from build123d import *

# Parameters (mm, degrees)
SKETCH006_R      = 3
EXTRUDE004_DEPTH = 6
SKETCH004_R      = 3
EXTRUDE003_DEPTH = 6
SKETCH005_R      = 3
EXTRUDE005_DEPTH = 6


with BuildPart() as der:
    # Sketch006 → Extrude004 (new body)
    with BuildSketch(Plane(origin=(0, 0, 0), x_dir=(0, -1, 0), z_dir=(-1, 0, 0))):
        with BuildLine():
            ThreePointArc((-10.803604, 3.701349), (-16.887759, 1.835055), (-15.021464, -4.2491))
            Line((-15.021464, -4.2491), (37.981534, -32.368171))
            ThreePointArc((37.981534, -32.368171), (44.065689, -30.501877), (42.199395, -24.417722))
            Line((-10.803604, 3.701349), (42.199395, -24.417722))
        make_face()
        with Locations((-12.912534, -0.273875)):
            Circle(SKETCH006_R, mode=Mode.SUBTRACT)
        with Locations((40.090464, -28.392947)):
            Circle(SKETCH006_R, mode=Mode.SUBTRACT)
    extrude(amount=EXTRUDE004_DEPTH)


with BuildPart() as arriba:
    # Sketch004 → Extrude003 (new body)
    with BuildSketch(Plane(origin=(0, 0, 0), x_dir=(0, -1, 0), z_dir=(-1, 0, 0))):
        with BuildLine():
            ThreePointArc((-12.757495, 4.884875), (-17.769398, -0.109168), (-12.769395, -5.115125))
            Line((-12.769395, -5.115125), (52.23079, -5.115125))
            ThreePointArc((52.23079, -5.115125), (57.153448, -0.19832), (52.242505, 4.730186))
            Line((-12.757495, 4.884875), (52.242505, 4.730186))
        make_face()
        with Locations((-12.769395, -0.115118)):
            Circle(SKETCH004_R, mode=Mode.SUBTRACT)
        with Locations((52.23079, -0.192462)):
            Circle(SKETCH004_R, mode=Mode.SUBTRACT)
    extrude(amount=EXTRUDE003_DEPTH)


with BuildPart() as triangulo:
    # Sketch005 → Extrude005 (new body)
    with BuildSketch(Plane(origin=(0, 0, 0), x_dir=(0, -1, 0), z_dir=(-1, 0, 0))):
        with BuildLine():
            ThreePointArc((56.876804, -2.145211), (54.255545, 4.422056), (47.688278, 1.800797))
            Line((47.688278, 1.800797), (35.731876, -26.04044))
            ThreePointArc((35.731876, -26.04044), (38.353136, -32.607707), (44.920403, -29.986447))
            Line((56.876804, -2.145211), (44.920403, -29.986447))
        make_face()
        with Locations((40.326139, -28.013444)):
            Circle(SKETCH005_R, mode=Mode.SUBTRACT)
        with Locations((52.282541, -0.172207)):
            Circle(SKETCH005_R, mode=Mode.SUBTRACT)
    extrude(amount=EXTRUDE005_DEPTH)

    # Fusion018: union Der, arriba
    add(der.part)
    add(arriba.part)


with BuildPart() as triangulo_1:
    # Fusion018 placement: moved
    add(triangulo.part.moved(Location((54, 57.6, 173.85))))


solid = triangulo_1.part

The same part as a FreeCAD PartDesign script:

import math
import FreeCAD as App
import Part
import Sketcher
Q = App.Units.Quantity

doc = App.newDocument("Part")
body = doc.addObject("PartDesign::Body", "Body")

sketch1 = doc.addObject("Sketcher::SketchObject", "Sketch")
body.addObject(sketch1)
sketch1.AttachmentSupport = (doc.YZ_Plane, [""])
sketch1.MapMode = "FlatFace"
sketch1.addGeometry([
    Part.ArcOfCircle(Part.Circle(App.Vector(12.912535, -0.273875, 0), App.Vector(0, 0, 1), 4.5), math.radians(-62.053232), math.radians(117.946785)),
    Part.LineSegment(App.Vector(15.021464, -4.2491, 0), App.Vector(-37.981534, -32.368171, 0)),
    Part.ArcOfCircle(Part.Circle(App.Vector(-40.090465, -28.392947, 0), App.Vector(0, 0, 1), 4.5), math.radians(117.946782), math.radians(297.946782)),
    Part.LineSegment(App.Vector(-42.199395, -24.417722, 0), App.Vector(10.803604, 3.701349, 0)),
    Part.Circle(App.Vector(-40.090464, -28.392947, 0), App.Vector(0, 0, 1), 3),
    Part.Circle(App.Vector(12.912534, -0.273875, 0), App.Vector(0, 0, 1), 3),
], False)
sketch1.addConstraint([
    Sketcher.Constraint("Tangent", 0, 1, 1, 1),
    Sketcher.Constraint("Tangent", 1, 2, 2, 2),
    Sketcher.Constraint("Tangent", 2, 1, 3, 1),
    Sketcher.Constraint("Tangent", 3, 2, 0, 2),
    Sketcher.Constraint("Coincident", 4, 3, 2, 3),
    Sketcher.Constraint("Coincident", 5, 3, 0, 3),
    Sketcher.Constraint("Equal", 0, 2),
    Sketcher.Constraint("Equal", 4, 5),
    Sketcher.Constraint("Diameter", 4, Q("6 mm")),
    Sketcher.Constraint("Radius", 0, Q("4.5 mm")),
    Sketcher.Constraint("Distance", 1, Q("60 mm")),
    Sketcher.Constraint("DistanceX", 2, 3, 0, 3, Q("53.002999 mm")),
    Sketcher.Constraint("DistanceY", 0, 1, -1, 1, Q("4.2491 mm")),
    Sketcher.Constraint("DistanceX", -1, 1, 0, 3, Q("12.912535 mm")),
])
pad1 = doc.addObject("PartDesign::Pad", "Pad")
body.addObject(pad1)
pad1.Profile = sketch1
pad1.Length = 6
pad1.Reversed = True
body2 = doc.addObject("PartDesign::Body", "Body001")

sketch2 = doc.addObject("Sketcher::SketchObject", "Sketch001")
body2.addObject(sketch2)
sketch2.AttachmentSupport = (doc.getObject("YZ_Plane001"), [""])
sketch2.MapMode = "FlatFace"
sketch2.addGeometry([
    Part.ArcOfCircle(Part.Circle(App.Vector(12.769394, -0.115118, 0), App.Vector(0, 0, 1), 5.000007), math.radians(-89.999994), math.radians(90.136358)),
    Part.LineSegment(App.Vector(12.769395, -5.115125, 0), App.Vector(-52.23079, -5.115125, 0)),
    Part.ArcOfCircle(Part.Circle(App.Vector(-52.230789, -0.192463, 0), App.Vector(0, 0, 1), 4.922662), math.radians(90.136365), math.radians(269.999989)),
    Part.LineSegment(App.Vector(-52.242505, 4.730186, 0), App.Vector(12.757495, 4.884875, 0)),
    Part.Circle(App.Vector(-52.23079, -0.192462, 0), App.Vector(0, 0, 1), 3),
    Part.Circle(App.Vector(12.769395, -0.115118, 0), App.Vector(0, 0, 1), 3),
], False)
sketch2.addConstraint([
    Sketcher.Constraint("Tangent", 0, 1, 1, 1),
    Sketcher.Constraint("Tangent", 1, 2, 2, 2),
    Sketcher.Constraint("Tangent", 2, 1, 3, 1),
    Sketcher.Constraint("Tangent", 3, 2, 0, 2),
    Sketcher.Constraint("Horizontal", 1),
    Sketcher.Constraint("Coincident", 4, 3, 2, 3),
    Sketcher.Constraint("Coincident", 5, 3, 0, 3),
    Sketcher.Constraint("Equal", 4, 5),
    Sketcher.Constraint("Diameter", 4, Q("6 mm")),
    Sketcher.Constraint("DistanceY", 0, 1, 3, 2, Q("10 mm")),
    Sketcher.Constraint("DistanceX", 2, 1, 3, 2, Q("65 mm")),
    Sketcher.Constraint("Radius", 2, Q("4.922662 mm")),
    Sketcher.Constraint("DistanceX", 2, 3, -1, 1, Q("52.230789 mm")),
    Sketcher.Constraint("DistanceY", 0, 3, -1, 1, Q("0.115118 mm")),
])
pad2 = doc.addObject("PartDesign::Pad", "Pad001")
body2.addObject(pad2)
pad2.Profile = sketch2
pad2.Length = 6
pad2.Reversed = True
body3 = doc.addObject("PartDesign::Body", "Body002")

sketch3 = doc.addObject("Sketcher::SketchObject", "Sketch002")
body3.addObject(sketch3)
sketch3.AttachmentSupport = (doc.getObject("YZ_Plane002"), [""])
sketch3.MapMode = "FlatFace"
sketch3.addGeometry([
    Part.ArcOfCircle(Part.Circle(App.Vector(-52.282541, -0.172207, 0), App.Vector(0, 0, 1), 5), math.radians(23.241081), math.radians(203.241081)),
    Part.LineSegment(App.Vector(-47.688278, 1.800797, 0), App.Vector(-35.731876, -26.04044, 0)),
    Part.ArcOfCircle(Part.Circle(App.Vector(-40.326139, -28.013444, 0), App.Vector(0, 0, 1), 5), math.radians(-156.758927), math.radians(23.241073)),
    Part.LineSegment(App.Vector(-44.920403, -29.986447, 0), App.Vector(-56.876804, -2.145211, 0)),
    Part.Circle(App.Vector(-40.326139, -28.013444, 0), App.Vector(0, 0, 1), 3),
    Part.Circle(App.Vector(-52.282541, -0.172207, 0), App.Vector(0, 0, 1), 3),
], False)
sketch3.addConstraint([
    Sketcher.Constraint("Tangent", 0, 1, 1, 1),
    Sketcher.Constraint("Tangent", 1, 2, 2, 2),
    Sketcher.Constraint("Tangent", 2, 1, 3, 1),
    Sketcher.Constraint("Tangent", 3, 2, 0, 2),
    Sketcher.Constraint("Coincident", 4, 3, 2, 3),
    Sketcher.Constraint("Coincident", 5, 3, 0, 3),
    Sketcher.Constraint("Equal", 0, 2),
    Sketcher.Constraint("Equal", 4, 5),
    Sketcher.Constraint("Diameter", 4, Q("6 mm")),
    Sketcher.Constraint("Radius", 0, Q("5 mm")),
    Sketcher.Constraint("Distance", 1, Q("30.3 mm")),
    Sketcher.Constraint("DistanceX", 0, 3, 2, 3, Q("11.956402 mm")),
    Sketcher.Constraint("DistanceX", 0, 3, -1, 1, Q("52.282541 mm")),
    Sketcher.Constraint("DistanceY", 1, 2, -1, 1, Q("26.04044 mm")),
])
pad3 = doc.addObject("PartDesign::Pad", "Pad002")
body3.addObject(pad3)
pad3.Profile = sketch3
pad3.Length = 6
pad3.Reversed = True
doc.recompute()

boolean = doc.addObject("PartDesign::Boolean", "Boolean")
body3.addObject(boolean)
boolean.Type = "Fuse"
boolean.addObjects([body])
doc.recompute()

boolean2 = doc.addObject("PartDesign::Boolean", "Boolean001")
body3.addObject(boolean2)
boolean2.Type = "Fuse"
boolean2.addObjects([body2])
body4 = doc.addObject("PartDesign::Body", "Body003")
doc.recompute()

body3.Placement = App.Placement(App.Vector(54, 57.6, 173.85), App.Rotation(App.Vector(0, 0, 1), 0))
boolean3 = doc.addObject("PartDesign::Boolean", "Boolean002")
body4.addObject(boolean3)
boolean3.Type = "Fuse"
boolean3.addObjects([body3])

doc.recompute()
